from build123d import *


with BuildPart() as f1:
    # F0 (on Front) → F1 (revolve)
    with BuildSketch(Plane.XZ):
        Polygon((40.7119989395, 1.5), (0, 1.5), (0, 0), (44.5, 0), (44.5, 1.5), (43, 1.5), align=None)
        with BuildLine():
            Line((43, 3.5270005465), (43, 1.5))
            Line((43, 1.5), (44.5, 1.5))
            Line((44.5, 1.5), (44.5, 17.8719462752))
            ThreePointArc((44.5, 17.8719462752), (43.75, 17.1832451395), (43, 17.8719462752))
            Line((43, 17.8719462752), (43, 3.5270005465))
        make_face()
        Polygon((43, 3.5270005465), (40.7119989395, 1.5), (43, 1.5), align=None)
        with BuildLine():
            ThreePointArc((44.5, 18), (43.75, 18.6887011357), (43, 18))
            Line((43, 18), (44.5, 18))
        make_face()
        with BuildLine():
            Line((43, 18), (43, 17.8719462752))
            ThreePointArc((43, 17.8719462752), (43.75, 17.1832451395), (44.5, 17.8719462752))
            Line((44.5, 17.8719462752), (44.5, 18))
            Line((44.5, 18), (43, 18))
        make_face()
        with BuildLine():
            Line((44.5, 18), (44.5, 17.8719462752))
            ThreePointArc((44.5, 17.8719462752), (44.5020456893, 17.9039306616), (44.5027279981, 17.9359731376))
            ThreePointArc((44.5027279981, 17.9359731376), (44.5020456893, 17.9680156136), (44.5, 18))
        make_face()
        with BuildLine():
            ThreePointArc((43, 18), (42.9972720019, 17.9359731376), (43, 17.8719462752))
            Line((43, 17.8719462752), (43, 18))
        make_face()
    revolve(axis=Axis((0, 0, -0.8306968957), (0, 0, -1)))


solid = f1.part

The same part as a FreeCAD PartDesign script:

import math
import FreeCAD as App
import Part
import Sketcher

doc = App.newDocument("Part")
params = doc.addObject("Spreadsheet::Sheet", "Params")
for row, (alias, value) in enumerate([
    ("sketch1_width", "44.5 mm"),
    ("sketch1_height", "1.5 mm"),
    ("revolution_angle", "360 deg"),
], start=1):
    params.set(f"A{row}", alias)
    params.set(f"B{row}", "=" + value)
    params.setAlias(f"B{row}", alias)

body = doc.addObject("PartDesign::Body", "Body")

# Sketch on XZ plane
sketch1 = body.newObject("Sketcher::SketchObject", "Sketch")
sketch1.AttachmentSupport = (doc.getObject("XZ_Plane"), [""])
sketch1.MapMode = "FlatFace"
sketch1.addGeometry([
    Part.LineSegment(App.Vector(0, 1.5, 0), App.Vector(0, 0, 0)),  # 0
    Part.LineSegment(App.Vector(0, 0, 0), App.Vector(44.5, 0, 0)),  # 1
    Part.LineSegment(App.Vector(44.5, 0, 0), App.Vector(44.5, 17.87, 0)),  # 2
    Part.ArcOfCircle(Part.Circle(App.Vector(43.75, 17.94, 0), App.Vector(0, 0, 1), 0.75), math.radians(-4.88), math.radians(0)),  # 3
    Part.ArcOfCircle(Part.Circle(App.Vector(43.75, 17.94, 0), App.Vector(0, 0, 1), 0.75), math.radians(0), math.radians(4.88)),  # 4
    Part.ArcOfCircle(Part.Circle(App.Vector(43.75, 17.94, 0), App.Vector(0, 0, 1), 0.75), math.radians(5), math.radians(175)),  # 5
    Part.ArcOfCircle(Part.Circle(App.Vector(43.75, 17.94, 0), App.Vector(0, 0, 1), 0.75), math.radians(175.12), math.radians(184.88)),  # 6
    Part.LineSegment(App.Vector(43, 17.87, 0), App.Vector(43, 3.53, 0)),  # 7
    Part.LineSegment(App.Vector(43, 3.53, 0), App.Vector(40.71, 1.5, 0)),  # 8
    Part.LineSegment(App.Vector(40.71, 1.5, 0), App.Vector(0, 1.5, 0)),  # 9
], False)
sketch1.addConstraint([
    Sketcher.Constraint("Coincident", 0, 2, 1, 1),
    Sketcher.Constraint("Coincident", 1, 2, 2, 1),
    Sketcher.Constraint("Coincident", 2, 2, 3, 1),
    Sketcher.Constraint("Tangent", 3, 2, 4, 1),
    Sketcher.Constraint("Tangent", 4, 2, 5, 1),
    Sketcher.Constraint("Tangent", 5, 2, 6, 1),
    Sketcher.Constraint("Coincident", 6, 2, 7, 1),
    Sketcher.Constraint("Coincident", 7, 2, 8, 1),
    Sketcher.Constraint("Coincident", 8, 2, 9, 1),
    Sketcher.Constraint("Coincident", 9, 2, 0, 1),
    Sketcher.Constraint("Vertical", 0),
    Sketcher.Constraint("Horizontal", 1),
    Sketcher.Constraint("Vertical", 2),
    Sketcher.Constraint("Vertical", 7),
    Sketcher.Constraint("Horizontal", 9),
    Sketcher.Constraint("Coincident", 0, 2, -1, 1),
    Sketcher.Constraint("Coincident", 5, 3, 3, 3),
    Sketcher.Constraint("Equal", 5, 6),
    Sketcher.Constraint("Horizontal", 6, 3, 3, 2),
    Sketcher.Constraint("Horizontal", 4, 2, 5, 2),
    Sketcher.Constraint("Horizontal", 2, 2, 6, 2),
    Sketcher.Constraint("Vertical", 2, 2, 4, 2),
    Sketcher.Constraint("DistanceX", 1, 1, 1, 2, 44.5),
    Sketcher.Constraint("DistanceY", 0, 2, 0, 1, 1.5),
    Sketcher.Constraint("DistanceY", -1, 1, 4, 2, 18.0),
    Sketcher.Constraint("DistanceX", -1, 1, 5, 2, 43.0),
    Sketcher.Constraint("DistanceX", 9, 2, 9, 1, 40.711999),
    Sketcher.Constraint("Radius", 3, 0.752728),
    Sketcher.Constraint("DistanceY", -1, 1, 7, 2, 3.527001),
])
sketch1.setExpression("Constraints[22]", "Params.sketch1_width")
sketch1.setExpression("Constraints[23]", "Params.sketch1_height")
revolution = body.newObject("PartDesign::Revolution", "Revolution")
revolution.Profile = sketch1
revolution.ReferenceAxis = (sketch1, ["V_Axis"])
revolution.setExpression("Angle", "Params.revolution_angle")

doc.recompute()
